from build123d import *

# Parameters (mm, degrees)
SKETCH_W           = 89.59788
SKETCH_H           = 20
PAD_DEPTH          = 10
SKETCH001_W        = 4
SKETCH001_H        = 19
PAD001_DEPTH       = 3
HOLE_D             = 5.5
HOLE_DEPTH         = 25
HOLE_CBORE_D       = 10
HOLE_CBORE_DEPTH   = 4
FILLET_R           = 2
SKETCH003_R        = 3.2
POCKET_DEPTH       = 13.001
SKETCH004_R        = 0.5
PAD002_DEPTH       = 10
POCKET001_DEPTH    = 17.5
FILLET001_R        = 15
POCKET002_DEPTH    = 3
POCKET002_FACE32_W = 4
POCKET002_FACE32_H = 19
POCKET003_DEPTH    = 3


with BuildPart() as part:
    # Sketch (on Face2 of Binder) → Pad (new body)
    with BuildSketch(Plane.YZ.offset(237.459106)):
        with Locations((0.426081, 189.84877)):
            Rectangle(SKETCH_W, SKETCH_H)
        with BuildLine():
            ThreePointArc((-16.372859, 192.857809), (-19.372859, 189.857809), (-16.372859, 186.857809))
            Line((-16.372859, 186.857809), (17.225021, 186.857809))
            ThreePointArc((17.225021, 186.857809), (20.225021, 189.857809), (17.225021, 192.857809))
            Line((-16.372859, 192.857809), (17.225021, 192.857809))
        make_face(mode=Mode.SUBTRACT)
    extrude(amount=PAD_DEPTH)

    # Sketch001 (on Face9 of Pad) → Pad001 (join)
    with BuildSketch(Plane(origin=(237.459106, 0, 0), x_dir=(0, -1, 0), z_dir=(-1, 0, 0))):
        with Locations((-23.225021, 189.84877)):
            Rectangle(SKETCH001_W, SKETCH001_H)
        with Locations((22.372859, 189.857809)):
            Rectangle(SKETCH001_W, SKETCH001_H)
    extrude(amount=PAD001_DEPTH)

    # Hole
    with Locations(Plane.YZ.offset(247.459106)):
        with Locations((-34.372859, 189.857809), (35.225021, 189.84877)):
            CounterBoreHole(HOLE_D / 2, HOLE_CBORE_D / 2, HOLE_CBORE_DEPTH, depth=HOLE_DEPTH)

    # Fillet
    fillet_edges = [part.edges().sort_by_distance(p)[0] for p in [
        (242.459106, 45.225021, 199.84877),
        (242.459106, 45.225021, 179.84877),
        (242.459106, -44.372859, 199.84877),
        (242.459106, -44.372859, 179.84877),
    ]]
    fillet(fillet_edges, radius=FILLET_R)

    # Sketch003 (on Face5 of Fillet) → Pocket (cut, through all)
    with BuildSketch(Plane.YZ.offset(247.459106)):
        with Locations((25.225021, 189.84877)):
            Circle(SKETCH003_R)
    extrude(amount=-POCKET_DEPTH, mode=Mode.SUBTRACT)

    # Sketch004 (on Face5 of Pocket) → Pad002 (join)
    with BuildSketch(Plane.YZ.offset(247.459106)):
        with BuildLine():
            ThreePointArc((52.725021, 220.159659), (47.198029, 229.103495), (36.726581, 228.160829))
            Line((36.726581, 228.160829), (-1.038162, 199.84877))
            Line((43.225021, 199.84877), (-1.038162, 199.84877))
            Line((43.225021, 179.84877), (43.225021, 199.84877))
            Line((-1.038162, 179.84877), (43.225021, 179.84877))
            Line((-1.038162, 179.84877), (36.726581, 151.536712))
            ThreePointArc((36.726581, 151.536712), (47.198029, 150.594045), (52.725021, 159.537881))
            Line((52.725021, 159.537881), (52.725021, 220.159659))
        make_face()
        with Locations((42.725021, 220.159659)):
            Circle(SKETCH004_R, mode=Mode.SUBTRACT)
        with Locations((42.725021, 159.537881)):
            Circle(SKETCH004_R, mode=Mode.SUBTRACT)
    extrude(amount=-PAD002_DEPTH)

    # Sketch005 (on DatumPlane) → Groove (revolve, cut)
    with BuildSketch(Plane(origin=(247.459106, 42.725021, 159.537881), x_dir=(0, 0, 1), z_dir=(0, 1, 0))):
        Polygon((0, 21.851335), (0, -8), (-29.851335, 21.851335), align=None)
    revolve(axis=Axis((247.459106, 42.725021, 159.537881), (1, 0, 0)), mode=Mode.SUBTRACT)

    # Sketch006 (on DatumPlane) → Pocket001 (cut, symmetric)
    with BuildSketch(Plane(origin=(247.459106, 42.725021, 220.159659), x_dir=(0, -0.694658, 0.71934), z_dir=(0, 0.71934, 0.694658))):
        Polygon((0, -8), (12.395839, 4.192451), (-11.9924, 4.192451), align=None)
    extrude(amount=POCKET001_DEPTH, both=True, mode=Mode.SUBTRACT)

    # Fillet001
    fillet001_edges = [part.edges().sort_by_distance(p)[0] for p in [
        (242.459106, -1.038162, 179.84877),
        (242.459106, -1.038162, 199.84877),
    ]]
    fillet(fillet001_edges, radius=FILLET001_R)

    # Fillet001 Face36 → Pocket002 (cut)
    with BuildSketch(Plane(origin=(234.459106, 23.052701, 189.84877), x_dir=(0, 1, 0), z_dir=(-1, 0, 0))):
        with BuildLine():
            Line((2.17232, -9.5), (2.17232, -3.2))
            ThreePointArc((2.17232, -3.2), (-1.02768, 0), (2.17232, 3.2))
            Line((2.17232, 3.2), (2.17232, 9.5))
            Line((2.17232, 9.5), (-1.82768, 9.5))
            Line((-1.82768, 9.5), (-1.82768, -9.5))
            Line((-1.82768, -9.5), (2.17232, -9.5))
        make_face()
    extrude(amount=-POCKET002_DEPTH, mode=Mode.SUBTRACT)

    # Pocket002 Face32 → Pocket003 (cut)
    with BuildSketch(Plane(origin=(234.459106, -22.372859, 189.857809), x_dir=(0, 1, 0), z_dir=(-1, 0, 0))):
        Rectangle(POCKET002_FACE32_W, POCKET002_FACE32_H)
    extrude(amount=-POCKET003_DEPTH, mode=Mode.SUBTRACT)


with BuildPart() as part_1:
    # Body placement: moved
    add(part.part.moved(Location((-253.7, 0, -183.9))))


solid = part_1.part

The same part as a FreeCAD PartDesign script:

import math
import FreeCAD as App
import Part
import Sketcher
from FreeCAD import Vector


def edges_at(feature, points):
    """Names of the edges that pass closest to the given points."""
    edges = feature.Shape.Edges
    near = lambda p: min(range(len(edges)), key=lambda i: edges[i].distToShape(Part.Vertex(*p))[0])
    return sorted({f"Edge{near(p) + 1}" for p in points})


def add_polygon(sketch, points):
    """Adds a closed chain of lines whose ends are joined by coincident constraints."""
    first, n = sketch.GeometryCount, len(points)
    for a, b in zip(points, points[1:] + points[:1]):
        sketch.addGeometry(Part.LineSegment(App.Vector(*a, 0), App.Vector(*b, 0)), False)
    for i in range(n):
        sketch.addConstraint(Sketcher.Constraint("Coincident", first + i, 2, first + (i + 1) % n, 1))

doc = App.newDocument("Part")
params = doc.addObject("Spreadsheet::Sheet", "Params")
for row, (alias, value) in enumerate([
    ("sketch1_radius", "3 mm"),
    ("sketch1_height", "20 mm"),
    ("pad1_length", "10 mm"),
    ("sketch2_width", "4 mm"),
    ("sketch2_height", "19 mm"),
    ("pad2_length", "3 mm"),
    ("sketch3_diameter", "5.5 mm"),
    ("hole_diameter", "5.5 mm"),
    ("hole_depth", "25 mm"),
    ("hole_cbore_diameter", "10 mm"),
    ("hole_cbore_depth", "4 mm"),
    ("fillet_radius", "2 mm"),
    ("sketch4_diameter", "6.4 mm"),
    ("sketch5_diameter", "1 mm"),
    ("sketch5_radius", "10 mm"),
    ("sketch5_height", "20 mm"),
    ("pad3_length", "10 mm"),
    ("groove_angle", "360 deg"),
    ("pocket2_length", "35 mm"),
    ("fillet2_radius", "15 mm"),
    ("sketch8_radius", "3.2 mm"),
    ("sketch8_width", "4 mm"),
    ("sketch8_height", "19 mm"),
    ("pocket3_length", "3 mm"),
    ("sketch9_width", "4 mm"),
    ("sketch9_height", "19 mm"),
    ("pocket4_length", "3 mm"),
], start=1):
    params.set(f"A{row}", alias)
    params.set(f"B{row}", "=" + value)
    params.setAlias(f"B{row}", alias)

body = doc.addObject("PartDesign::Body", "Body")

# Sketch on YZ plane
sketch1 = doc.addObject("Sketcher::SketchObject", "Sketch")
body.addObject(sketch1)
sketch1.AttachmentSupport = (doc.YZ_Plane, [""])
sketch1.MapMode = "FlatFace"
sketch1.AttachmentOffset = App.Placement(Vector(0, 0, 237.459106), App.Rotation())
add_polygon(sketch1, [(-44.372859, 199.84877), (-44.372859, 179.84877), (45.225021, 179.84877), (45.225021, 199.84877)])  # lines 0-3
sketch1.addGeometry(Part.ArcOfCircle(Part.Circle(Vector(-16.372859, 189.857809, 0), Vector(0, 0, 1), 3), math.radians(90), math.radians(270)), False)  # 4
sketch1.addGeometry(Part.LineSegment(Vector(-16.372859, 192.857809, 0), Vector(17.225021, 192.857809, 0)), False)  # 5
sketch1.addGeometry(Part.ArcOfCircle(Part.Circle(Vector(17.225021, 189.857809, 0), Vector(0, 0, 1), 3), math.radians(-90), math.radians(90)), False)  # 6
sketch1.addGeometry(Part.LineSegment(Vector(17.225021, 186.857809, 0), Vector(-16.372859, 186.857809, 0)), False)  # 7
sketch1.addConstraint(Sketcher.Constraint("Tangent", 4, 1, 5, 1))
sketch1.addConstraint(Sketcher.Constraint("Tangent", 5, 2, 6, 2))
sketch1.addConstraint(Sketcher.Constraint("Tangent", 6, 1, 7, 1))
sketch1.addConstraint(Sketcher.Constraint("Tangent", 7, 2, 4, 2))
sketch1.addConstraint(Sketcher.Constraint("Vertical", 0))
sketch1.addConstraint(Sketcher.Constraint("Horizontal", 1))
sketch1.addConstraint(Sketcher.Constraint("Vertical", 2))
sketch1.addConstraint(Sketcher.Constraint("Horizontal", 3))
sketch1.addConstraint(Sketcher.Constraint("Horizontal", 5))
sketch1.addConstraint(Sketcher.Constraint("Horizontal", 7))
sketch1.addConstraint(Sketcher.Constraint("Radius", 4, 3.0))
sketch1.addConstraint(Sketcher.Constraint("DistanceY", 0, 2, 0, 1, 20.0))
sketch1.addConstraint(Sketcher.Constraint("DistanceX", 0, 2, 4, 3, 28.0))
sketch1.addConstraint(Sketcher.Constraint("DistanceX", 6, 3, 1, 2, 28.0))
sketch1.addConstraint(Sketcher.Constraint("DistanceX", 1, 1, 1, 2, 89.59788))
sketch1.addConstraint(Sketcher.Constraint("DistanceX", 4, 3, -1, 1, 16.372859))
sketch1.addConstraint(Sketcher.Constraint("DistanceY", -1, 1, 4, 3, 189.857809))
sketch1.addConstraint(Sketcher.Constraint("DistanceY", -1, 1, 0, 2, 179.84877))
sketch1.setExpression("Constraints[14]", "Params.sketch1_radius")
sketch1.setExpression("Constraints[15]", "Params.sketch1_height")
pad1 = doc.addObject("PartDesign::Pad", "Pad")
body.addObject(pad1)
pad1.Profile = sketch1
pad1.setExpression("Length", "Params.pad1_length")

# Sketch on YZ plane
sketch2 = doc.addObject("Sketcher::SketchObject", "Sketch001")
body.addObject(sketch2)
sketch2.AttachmentSupport = (doc.YZ_Plane, [""])
sketch2.MapMode = "FlatFace"
sketch2.AttachmentOffset = App.Placement(Vector(0, 0, 237.459106), App.Rotation())
add_polygon(sketch2, [(25.225021, 199.34877), (25.225021, 180.34877), (21.225021, 180.34877), (21.225021, 199.34877)])  # lines 0-3
add_polygon(sketch2, [(-20.372859, 199.357809), (-20.372859, 180.357809), (-24.372859, 180.357809), (-24.372859, 199.357809)])  # lines 4-7
sketch2.addConstraint(Sketcher.Constraint("Vertical", 0))
sketch2.addConstraint(Sketcher.Constraint("Horizontal", 1))
sketch2.addConstraint(Sketcher.Constraint("Vertical", 2))
sketch2.addConstraint(Sketcher.Constraint("Horizontal", 3))
sketch2.addConstraint(Sketcher.Constraint("Vertical", 4))
sketch2.addConstraint(Sketcher.Constraint("Horizontal", 5))
sketch2.addConstraint(Sketcher.Constraint("Vertical", 6))
sketch2.addConstraint(Sketcher.Constraint("Horizontal", 7))
sketch2.addConstraint(Sketcher.Constraint("Equal", 3, 5))
sketch2.addConstraint(Sketcher.Constraint("Equal", 2, 4))
sketch2.addConstraint(Sketcher.Constraint("DistanceX", 1, 2, 1, 1, 4.0))
sketch2.addConstraint(Sketcher.Constraint("DistanceY", 0, 2, 0, 1, 19.0))
sketch2.addConstraint(Sketcher.Constraint("DistanceX", -1, 1, 0, 2, 25.225021))
sketch2.addConstraint(Sketcher.Constraint("DistanceY", -1, 1, 0, 2, 180.34877))
sketch2.addConstraint(Sketcher.Constraint("DistanceX", 4, 2, -1, 1, 20.372859))
sketch2.addConstraint(Sketcher.Constraint("DistanceY", -1, 1, 4, 2, 180.357809))
sketch2.setExpression("Constraints[18]", "Params.sketch2_width")
sketch2.setExpression("Constraints[19]", "Params.sketch2_height")
pad2 = doc.addObject("PartDesign::Pad", "Pad001")
body.addObject(pad2)
pad2.Profile = sketch2
pad2.setExpression("Length", "Params.pad2_length")
pad2.Reversed = True

# Sketch on YZ plane
sketch3 = doc.addObject("Sketcher::SketchObject", "Sketch002")
body.addObject(sketch3)
sketch3.AttachmentSupport = (doc.YZ_Plane, [""])
sketch3.MapMode = "FlatFace"
sketch3.AttachmentOffset = App.Placement(Vector(0, 0, 247.459106), App.Rotation())
sketch3.addGeometry(Part.Circle(Vector(-34.372859, 189.857809, 0), Vector(0, 0, 1), 2.75), False)
sketch3.addGeometry(Part.Circle(Vector(35.225021, 189.84877, 0), Vector(0, 0, 1), 2.75), False)
sketch3.addConstraint(Sketcher.Constraint("Equal", 0, 1))
sketch3.addConstraint(Sketcher.Constraint("Diameter", 0, 5.5))
sketch3.addConstraint(Sketcher.Constraint("DistanceX", 0, 3, -1, 1, 34.372859))
sketch3.addConstraint(Sketcher.Constraint("DistanceY", -1, 1, 0, 3, 189.857809))
sketch3.addConstraint(Sketcher.Constraint("DistanceX", -1, 1, 1, 3, 35.225021))
sketch3.addConstraint(Sketcher.Constraint("DistanceY", -1, 1, 1, 3, 189.84877))
sketch3.setExpression("Constraints[1]", "Params.sketch3_diameter")
doc.recompute()
hole = doc.addObject("PartDesign::Hole", "Hole")
body.addObject(hole)
hole.Profile = sketch3
hole.ThreadType = "None"
hole.setExpression("Diameter", "Params.hole_diameter")
hole.DepthType = "Dimension"
hole.setExpression("Depth", "Params.hole_depth")
hole.DrillPoint = "Flat"
hole.HoleCutType = "Counterbore"
hole.setExpression("HoleCutDiameter", "Params.hole_cbore_diameter")
hole.setExpression("HoleCutDepth", "Params.hole_cbore_depth")
doc.recompute()

fillet = doc.addObject("PartDesign::Fillet", "Fillet")
body.addObject(fillet)
fillet.Base = (hole, edges_at(hole, [
    (242.459, 45.225, 199.849),
    (242.459, 45.225, 179.849),
    (242.459, -44.373, 199.849),
    (242.459, -44.373, 179.849),
]))
fillet.setExpression("Radius", "Params.fillet_radius")

# Sketch on YZ plane
sketch4 = doc.addObject("Sketcher::SketchObject", "Sketch003")
body.addObject(sketch4)
sketch4.AttachmentSupport = (doc.YZ_Plane, [""])
sketch4.MapMode = "FlatFace"
sketch4.AttachmentOffset = App.Placement(Vector(0, 0, 247.459106), App.Rotation())
sketch4.addGeometry(Part.Circle(Vector(25.225021, 189.84877, 0), Vector(0, 0, 1), 3.2), False)
sketch4.addConstraint(Sketcher.Constraint("Diameter", 0, 6.4))
sketch4.addConstraint(Sketcher.Constraint("DistanceX", -1, 1, 0, 3, 25.225021))
sketch4.addConstraint(Sketcher.Constraint("DistanceY", -1, 1, 0, 3, 189.84877))
sketch4.setExpression("Constraints[0]", "Params.sketch4_diameter")
pocket1 = doc.addObject("PartDesign::Pocket", "Pocket")
body.addObject(pocket1)
pocket1.Profile = sketch4
pocket1.Type = "ThroughAll"

# Sketch on YZ plane
sketch5 = doc.addObject("Sketcher::SketchObject", "Sketch004")
body.addObject(sketch5)
sketch5.AttachmentSupport = (doc.YZ_Plane, [""])
sketch5.MapMode = "FlatFace"
sketch5.AttachmentOffset = App.Placement(Vector(0, 0, 247.459106), App.Rotation())
sketch5.addGeometry(Part.ArcOfCircle(Part.Circle(Vector(42.725021, 220.159659, 0), Vector(0, 0, 1), 10), math.radians(-0.000001), math.radians(126.858725)), False)
sketch5.addGeometry(Part.LineSegment(Vector(36.726581, 228.160829, 0), Vector(-1.038162, 199.84877, 0)), False)
sketch5.addGeometry(Part.LineSegment(Vector(-1.038162, 199.84877, 0), Vector(43.225021, 199.84877, 0)), False)
sketch5.addGeometry(Part.LineSegment(Vector(43.225021, 199.84877, 0), Vector(43.225021, 179.84877, 0)), False)
sketch5.addGeometry(Part.LineSegment(Vector(43.225021, 179.84877, 0), Vector(-1.038162, 179.84877, 0)), False)
sketch5.addGeometry(Part.LineSegment(Vector(-1.038162, 179.84877, 0), Vector(36.726581, 151.536712, 0)), False)
sketch5.addGeometry(Part.ArcOfCircle(Part.Circle(Vector(42.725022, 159.53788, 0), Vector(0, 0, 1), 9.999999), math.radians(-126.858733), math.radians(0.000003)), False)
sketch5.addGeometry(Part.LineSegment(Vector(52.725021, 159.537881, 0), Vector(52.725021, 220.159659, 0)), False)
sketch5.addGeometry(Part.Circle(Vector(42.725021, 159.537881, 0), Vector(0, 0, 1), 0.5), False)
sketch5.addGeometry(Part.Circle(Vector(42.725021, 220.159659, 0), Vector(0, 0, 1), 0.5), False)
sketch5.addConstraint(Sketcher.Constraint("Tangent", 0, 2, 1, 1))
sketch5.addConstraint(Sketcher.Constraint("Coincident", 1, 2, 2, 1))
sketch5.addConstraint(Sketcher.Constraint("Coincident", 2, 2, 3, 1))
sketch5.addConstraint(Sketcher.Constraint("Coincident", 3, 2, 4, 1))
sketch5.addConstraint(Sketcher.Constraint("Coincident", 4, 2, 5, 1))
sketch5.addConstraint(Sketcher.Constraint("Tangent", 5, 2, 6, 1))
sketch5.addConstraint(Sketcher.Constraint("Tangent", 6, 2, 7, 1))
sketch5.addConstraint(Sketcher.Constraint("Tangent", 7, 2, 0, 1))
sketch5.addConstraint(Sketcher.Constraint("Horizontal", 2))
sketch5.addConstraint(Sketcher.Constraint("Vertical", 3))
sketch5.addConstraint(Sketcher.Constraint("Horizontal", 4))
sketch5.addConstraint(Sketcher.Constraint("Vertical", 7))
sketch5.addConstraint(Sketcher.Constraint("Coincident", 8, 3, 6, 3))
sketch5.addConstraint(Sketcher.Constraint("Coincident", 9, 3, 0, 3))
sketch5.addConstraint(Sketcher.Constraint("Equal", 0, 6))
sketch5.addConstraint(Sketcher.Constraint("Equal", 8, 9))
sketch5.addConstraint(Sketcher.Constraint("Vertical", 1, 2, 4, 2))
sketch5.addConstraint(Sketcher.Constraint("Vertical", 0, 2, 5, 2))
sketch5.addConstraint(Sketcher.Constraint("Diameter", 8, 1.0))
sketch5.addConstraint(Sketcher.Constraint("Radius", 0, 10.0))
sketch5.addConstraint(Sketcher.Constraint("DistanceY", 3, 2, 3, 1, 20.0))
sketch5.addConstraint(Sketcher.Constraint("DistanceX", 9, 3, 2, 2, 0.5))
sketch5.addConstraint(Sketcher.Constraint("DistanceY", 7, 1, 7, 2, 60.621778))
sketch5.addConstraint(Sketcher.Constraint("Distance", 1, 47.199031))
sketch5.addConstraint(Sketcher.Constraint("DistanceX", -1, 1, 0, 3, 42.725021))
sketch5.addConstraint(Sketcher.Constraint("DistanceY", -1, 1, 0, 3, 220.159659))
sketch5.setExpression("Constraints[18]", "Params.sketch5_diameter")
sketch5.setExpression("Constraints[19]", "Params.sketch5_radius")
sketch5.setExpression("Constraints[20]", "Params.sketch5_height")
pad3 = doc.addObject("PartDesign::Pad", "Pad002")
body.addObject(pad3)
pad3.Profile = sketch5
pad3.setExpression("Length", "Params.pad3_length")
pad3.Reversed = True

# Sketch on XZ plane
sketch6 = doc.addObject("Sketcher::SketchObject", "Sketch005")
body.addObject(sketch6)
sketch6.AttachmentSupport = (doc.XZ_Plane, [""])
sketch6.MapMode = "FlatFace"
sketch6.AttachmentOffset = App.Placement(Vector(0, 0, -42.725021), App.Rotation())
add_polygon(sketch6, [(239.459106, 159.537881), (269.310441, 159.537881), (269.310441, 129.686546)])  # lines 0-2
sketch6.addGeometry(Part.LineSegment(Vector(239.459106, 159.537881, 0), Vector(269.310441, 159.537881, 0)), True)  # axis
sketch6.addConstraint(Sketcher.Constraint("Horizontal", 0))
sketch6.addConstraint(Sketcher.Constraint("Vertical", 1))
sketch6.addConstraint(Sketcher.Constraint("Horizontal", 3))
sketch6.addConstraint(Sketcher.Constraint("Coincident", 3, 1, 2, 2))
sketch6.addConstraint(Sketcher.Constraint("Vertical", 1, 2, 3, 2))
sketch6.addConstraint(Sketcher.Constraint("Equal", 3, 1))
sketch6.addConstraint(Sketcher.Constraint("DistanceX", 0, 1, 0, 2, 29.851335))
sketch6.addConstraint(Sketcher.Constraint("DistanceX", -1, 1, 0, 2, 269.310441))
sketch6.addConstraint(Sketcher.Constraint("DistanceY", -1, 1, 0, 2, 159.537881))
groove = doc.addObject("PartDesign::Groove", "Groove")
body.addObject(groove)
groove.Profile = sketch6
groove.ReferenceAxis = (sketch6, ["Axis0"])
groove.setExpression("Angle", "Params.groove_angle")

# Sketch on an angled plane
sketch7 = doc.addObject("Sketcher::SketchObject", "Sketch006")
body.addObject(sketch7)
sketch7.Placement = App.Placement(Vector(247.459106, 42.725021, 220.159659), App.Rotation(Vector(0, -0.694658079, 0.719340082), Vector(1, 0, 0), Vector(0, 0.719340082, 0.694658079), "ZXY"))
add_polygon(sketch7, [(0, -8), (12.395839, 4.192451), (-11.9924, 4.192451)])  # lines 0-2
sketch7.addConstraint(Sketcher.Constraint("Horizontal", 1))
sketch7.addConstraint(Sketcher.Constraint("PointOnObject", 2, 2, -2))
sketch7.addConstraint(Sketcher.Constraint("Perpendicular", 0, 2))
sketch7.addConstraint(Sketcher.Constraint("DistanceY", 2, 2, -1, 1, 8.0))
sketch7.addConstraint(Sketcher.Constraint("DistanceX", 1, 2, 1, 1, 24.388239))
sketch7.addConstraint(Sketcher.Constraint("DistanceX", 1, 2, -1, 1, 11.9924))
pocket2 = doc.addObject("PartDesign::Pocket", "Pocket001")
body.addObject(pocket2)
pocket2.Profile = sketch7
pocket2.setExpression("Length", "Params.pocket2_length")
pocket2.Midplane = True
doc.recompute()

fillet2 = doc.addObject("PartDesign::Fillet", "Fillet001")
body.addObject(fillet2)
fillet2.Base = (pocket2, edges_at(pocket2, [(242.459, -1.038, 179.849), (242.459, -1.038, 199.849)]))
fillet2.setExpression("Radius", "Params.fillet2_radius")

# Sketch on YZ plane
sketch8 = doc.addObject("Sketcher::SketchObject", "Sketch007")
body.addObject(sketch8)
sketch8.AttachmentSupport = (doc.YZ_Plane, [""])
sketch8.MapMode = "FlatFace"
sketch8.AttachmentOffset = App.Placement(Vector(0, 0, 234.459106), App.Rotation())
sketch8.addGeometry(Part.LineSegment(Vector(25.225021, 199.34877, 0), Vector(25.225021, 193.04877, 0)), False)
sketch8.addGeometry(Part.ArcOfCircle(Part.Circle(Vector(25.225021, 189.84877, 0), Vector(0, 0, 1), 3.2), math.radians(90), math.radians(270)), False)
sketch8.addGeometry(Part.LineSegment(Vector(25.225021, 186.64877, 0), Vector(25.225021, 180.34877, 0)), False)
sketch8.addGeometry(Part.LineSegment(Vector(25.225021, 180.34877, 0), Vector(21.225021, 180.34877, 0)), False)
sketch8.addGeometry(Part.LineSegment(Vector(21.225021, 180.34877, 0), Vector(21.225021, 199.34877, 0)), False)
sketch8.addGeometry(Part.LineSegment(Vector(21.225021, 199.34877, 0), Vector(25.225021, 199.34877, 0)), False)
sketch8.addConstraint(Sketcher.Constraint("Coincident", 0, 2, 1, 1))
sketch8.addConstraint(Sketcher.Constraint("Coincident", 1, 2, 2, 1))
sketch8.addConstraint(Sketcher.Constraint("Coincident", 2, 2, 3, 1))
sketch8.addConstraint(Sketcher.Constraint("Coincident", 3, 2, 4, 1))
sketch8.addConstraint(Sketcher.Constraint("Coincident", 4, 2, 5, 1))
sketch8.addConstraint(Sketcher.Constraint("Coincident", 5, 2, 0, 1))
sketch8.addConstraint(Sketcher.Constraint("Vertical", 0))
sketch8.addConstraint(Sketcher.Constraint("Vertical", 2))
sketch8.addConstraint(Sketcher.Constraint("Horizontal", 3))
sketch8.addConstraint(Sketcher.Constraint("Vertical", 4))
sketch8.addConstraint(Sketcher.Constraint("Horizontal", 5))
sketch8.addConstraint(Sketcher.Constraint("Vertical", 1, 3, 0, 2))
sketch8.addConstraint(Sketcher.Constraint("Vertical", 0, 2, 1, 2))
sketch8.addConstraint(Sketcher.Constraint("Equal", 0, 2))
sketch8.addConstraint(Sketcher.Constraint("Radius", 1, 3.2))
sketch8.addConstraint(Sketcher.Constraint("DistanceX", 3, 2, 3, 1, 4.0))
sketch8.addConstraint(Sketcher.Constraint("DistanceY", 4, 1, 4, 2, 19.0))
sketch8.addConstraint(Sketcher.Constraint("DistanceX", -1, 1, 1, 3, 25.225021))
sketch8.addConstraint(Sketcher.Constraint("DistanceY", -1, 1, 1, 3, 189.84877))
sketch8.setExpression("Constraints[14]", "Params.sketch8_radius")
sketch8.setExpression("Constraints[15]", "Params.sketch8_width")
sketch8.setExpression("Constraints[16]", "Params.sketch8_height")
pocket3 = doc.addObject("PartDesign::Pocket", "Pocket002")
body.addObject(pocket3)
pocket3.Profile = sketch8
pocket3.setExpression("Length", "Params.pocket3_length")
pocket3.Reversed = True

# Sketch on YZ plane
sketch9 = doc.addObject("Sketcher::SketchObject", "Sketch008")
body.addObject(sketch9)
sketch9.AttachmentSupport = (doc.YZ_Plane, [""])
sketch9.MapMode = "FlatFace"
sketch9.AttachmentOffset = App.Placement(Vector(0, 0, 234.459106), App.Rotation())
add_polygon(sketch9, [(-24.372859, 180.357809), (-24.372859, 199.357809), (-20.372859, 199.357809), (-20.372859, 180.357809)])  # lines 0-3
sketch9.addConstraint(Sketcher.Constraint("Vertical", 0))
sketch9.addConstraint(Sketcher.Constraint("Horizontal", 1))
sketch9.addConstraint(Sketcher.Constraint("Vertical", 2))
sketch9.addConstraint(Sketcher.Constraint("Horizontal", 3))
sketch9.addConstraint(Sketcher.Constraint("DistanceX", 1, 1, 1, 2, 4.0))
sketch9.addConstraint(Sketcher.Constraint("DistanceY", 0, 1, 0, 2, 19.0))
sketch9.addConstraint(Sketcher.Constraint("DistanceX", 0, 2, -1, 1, 24.372859))
sketch9.addConstraint(Sketcher.Constraint("DistanceY", -1, 1, 0, 2, 199.357809))
sketch9.setExpression("Constraints[8]", "Params.sketch9_width")
sketch9.setExpression("Constraints[9]", "Params.sketch9_height")
pocket4 = doc.addObject("PartDesign::Pocket", "Pocket003")
body.addObject(pocket4)
pocket4.Profile = sketch9
pocket4.setExpression("Length", "Params.pocket4_length")
pocket4.Reversed = True
body2 = doc.addObject("PartDesign::Body", "Body001")
doc.recompute()

body.Placement = App.Placement(Vector(-253.7, 0, -183.9), App.Rotation(Vector(0, 0, 1), 0))
boolean = doc.addObject("PartDesign::Boolean", "Boolean")
body2.addObject(boolean)
boolean.Type = "Fuse"
boolean.addObjects([body])

doc.recompute()
